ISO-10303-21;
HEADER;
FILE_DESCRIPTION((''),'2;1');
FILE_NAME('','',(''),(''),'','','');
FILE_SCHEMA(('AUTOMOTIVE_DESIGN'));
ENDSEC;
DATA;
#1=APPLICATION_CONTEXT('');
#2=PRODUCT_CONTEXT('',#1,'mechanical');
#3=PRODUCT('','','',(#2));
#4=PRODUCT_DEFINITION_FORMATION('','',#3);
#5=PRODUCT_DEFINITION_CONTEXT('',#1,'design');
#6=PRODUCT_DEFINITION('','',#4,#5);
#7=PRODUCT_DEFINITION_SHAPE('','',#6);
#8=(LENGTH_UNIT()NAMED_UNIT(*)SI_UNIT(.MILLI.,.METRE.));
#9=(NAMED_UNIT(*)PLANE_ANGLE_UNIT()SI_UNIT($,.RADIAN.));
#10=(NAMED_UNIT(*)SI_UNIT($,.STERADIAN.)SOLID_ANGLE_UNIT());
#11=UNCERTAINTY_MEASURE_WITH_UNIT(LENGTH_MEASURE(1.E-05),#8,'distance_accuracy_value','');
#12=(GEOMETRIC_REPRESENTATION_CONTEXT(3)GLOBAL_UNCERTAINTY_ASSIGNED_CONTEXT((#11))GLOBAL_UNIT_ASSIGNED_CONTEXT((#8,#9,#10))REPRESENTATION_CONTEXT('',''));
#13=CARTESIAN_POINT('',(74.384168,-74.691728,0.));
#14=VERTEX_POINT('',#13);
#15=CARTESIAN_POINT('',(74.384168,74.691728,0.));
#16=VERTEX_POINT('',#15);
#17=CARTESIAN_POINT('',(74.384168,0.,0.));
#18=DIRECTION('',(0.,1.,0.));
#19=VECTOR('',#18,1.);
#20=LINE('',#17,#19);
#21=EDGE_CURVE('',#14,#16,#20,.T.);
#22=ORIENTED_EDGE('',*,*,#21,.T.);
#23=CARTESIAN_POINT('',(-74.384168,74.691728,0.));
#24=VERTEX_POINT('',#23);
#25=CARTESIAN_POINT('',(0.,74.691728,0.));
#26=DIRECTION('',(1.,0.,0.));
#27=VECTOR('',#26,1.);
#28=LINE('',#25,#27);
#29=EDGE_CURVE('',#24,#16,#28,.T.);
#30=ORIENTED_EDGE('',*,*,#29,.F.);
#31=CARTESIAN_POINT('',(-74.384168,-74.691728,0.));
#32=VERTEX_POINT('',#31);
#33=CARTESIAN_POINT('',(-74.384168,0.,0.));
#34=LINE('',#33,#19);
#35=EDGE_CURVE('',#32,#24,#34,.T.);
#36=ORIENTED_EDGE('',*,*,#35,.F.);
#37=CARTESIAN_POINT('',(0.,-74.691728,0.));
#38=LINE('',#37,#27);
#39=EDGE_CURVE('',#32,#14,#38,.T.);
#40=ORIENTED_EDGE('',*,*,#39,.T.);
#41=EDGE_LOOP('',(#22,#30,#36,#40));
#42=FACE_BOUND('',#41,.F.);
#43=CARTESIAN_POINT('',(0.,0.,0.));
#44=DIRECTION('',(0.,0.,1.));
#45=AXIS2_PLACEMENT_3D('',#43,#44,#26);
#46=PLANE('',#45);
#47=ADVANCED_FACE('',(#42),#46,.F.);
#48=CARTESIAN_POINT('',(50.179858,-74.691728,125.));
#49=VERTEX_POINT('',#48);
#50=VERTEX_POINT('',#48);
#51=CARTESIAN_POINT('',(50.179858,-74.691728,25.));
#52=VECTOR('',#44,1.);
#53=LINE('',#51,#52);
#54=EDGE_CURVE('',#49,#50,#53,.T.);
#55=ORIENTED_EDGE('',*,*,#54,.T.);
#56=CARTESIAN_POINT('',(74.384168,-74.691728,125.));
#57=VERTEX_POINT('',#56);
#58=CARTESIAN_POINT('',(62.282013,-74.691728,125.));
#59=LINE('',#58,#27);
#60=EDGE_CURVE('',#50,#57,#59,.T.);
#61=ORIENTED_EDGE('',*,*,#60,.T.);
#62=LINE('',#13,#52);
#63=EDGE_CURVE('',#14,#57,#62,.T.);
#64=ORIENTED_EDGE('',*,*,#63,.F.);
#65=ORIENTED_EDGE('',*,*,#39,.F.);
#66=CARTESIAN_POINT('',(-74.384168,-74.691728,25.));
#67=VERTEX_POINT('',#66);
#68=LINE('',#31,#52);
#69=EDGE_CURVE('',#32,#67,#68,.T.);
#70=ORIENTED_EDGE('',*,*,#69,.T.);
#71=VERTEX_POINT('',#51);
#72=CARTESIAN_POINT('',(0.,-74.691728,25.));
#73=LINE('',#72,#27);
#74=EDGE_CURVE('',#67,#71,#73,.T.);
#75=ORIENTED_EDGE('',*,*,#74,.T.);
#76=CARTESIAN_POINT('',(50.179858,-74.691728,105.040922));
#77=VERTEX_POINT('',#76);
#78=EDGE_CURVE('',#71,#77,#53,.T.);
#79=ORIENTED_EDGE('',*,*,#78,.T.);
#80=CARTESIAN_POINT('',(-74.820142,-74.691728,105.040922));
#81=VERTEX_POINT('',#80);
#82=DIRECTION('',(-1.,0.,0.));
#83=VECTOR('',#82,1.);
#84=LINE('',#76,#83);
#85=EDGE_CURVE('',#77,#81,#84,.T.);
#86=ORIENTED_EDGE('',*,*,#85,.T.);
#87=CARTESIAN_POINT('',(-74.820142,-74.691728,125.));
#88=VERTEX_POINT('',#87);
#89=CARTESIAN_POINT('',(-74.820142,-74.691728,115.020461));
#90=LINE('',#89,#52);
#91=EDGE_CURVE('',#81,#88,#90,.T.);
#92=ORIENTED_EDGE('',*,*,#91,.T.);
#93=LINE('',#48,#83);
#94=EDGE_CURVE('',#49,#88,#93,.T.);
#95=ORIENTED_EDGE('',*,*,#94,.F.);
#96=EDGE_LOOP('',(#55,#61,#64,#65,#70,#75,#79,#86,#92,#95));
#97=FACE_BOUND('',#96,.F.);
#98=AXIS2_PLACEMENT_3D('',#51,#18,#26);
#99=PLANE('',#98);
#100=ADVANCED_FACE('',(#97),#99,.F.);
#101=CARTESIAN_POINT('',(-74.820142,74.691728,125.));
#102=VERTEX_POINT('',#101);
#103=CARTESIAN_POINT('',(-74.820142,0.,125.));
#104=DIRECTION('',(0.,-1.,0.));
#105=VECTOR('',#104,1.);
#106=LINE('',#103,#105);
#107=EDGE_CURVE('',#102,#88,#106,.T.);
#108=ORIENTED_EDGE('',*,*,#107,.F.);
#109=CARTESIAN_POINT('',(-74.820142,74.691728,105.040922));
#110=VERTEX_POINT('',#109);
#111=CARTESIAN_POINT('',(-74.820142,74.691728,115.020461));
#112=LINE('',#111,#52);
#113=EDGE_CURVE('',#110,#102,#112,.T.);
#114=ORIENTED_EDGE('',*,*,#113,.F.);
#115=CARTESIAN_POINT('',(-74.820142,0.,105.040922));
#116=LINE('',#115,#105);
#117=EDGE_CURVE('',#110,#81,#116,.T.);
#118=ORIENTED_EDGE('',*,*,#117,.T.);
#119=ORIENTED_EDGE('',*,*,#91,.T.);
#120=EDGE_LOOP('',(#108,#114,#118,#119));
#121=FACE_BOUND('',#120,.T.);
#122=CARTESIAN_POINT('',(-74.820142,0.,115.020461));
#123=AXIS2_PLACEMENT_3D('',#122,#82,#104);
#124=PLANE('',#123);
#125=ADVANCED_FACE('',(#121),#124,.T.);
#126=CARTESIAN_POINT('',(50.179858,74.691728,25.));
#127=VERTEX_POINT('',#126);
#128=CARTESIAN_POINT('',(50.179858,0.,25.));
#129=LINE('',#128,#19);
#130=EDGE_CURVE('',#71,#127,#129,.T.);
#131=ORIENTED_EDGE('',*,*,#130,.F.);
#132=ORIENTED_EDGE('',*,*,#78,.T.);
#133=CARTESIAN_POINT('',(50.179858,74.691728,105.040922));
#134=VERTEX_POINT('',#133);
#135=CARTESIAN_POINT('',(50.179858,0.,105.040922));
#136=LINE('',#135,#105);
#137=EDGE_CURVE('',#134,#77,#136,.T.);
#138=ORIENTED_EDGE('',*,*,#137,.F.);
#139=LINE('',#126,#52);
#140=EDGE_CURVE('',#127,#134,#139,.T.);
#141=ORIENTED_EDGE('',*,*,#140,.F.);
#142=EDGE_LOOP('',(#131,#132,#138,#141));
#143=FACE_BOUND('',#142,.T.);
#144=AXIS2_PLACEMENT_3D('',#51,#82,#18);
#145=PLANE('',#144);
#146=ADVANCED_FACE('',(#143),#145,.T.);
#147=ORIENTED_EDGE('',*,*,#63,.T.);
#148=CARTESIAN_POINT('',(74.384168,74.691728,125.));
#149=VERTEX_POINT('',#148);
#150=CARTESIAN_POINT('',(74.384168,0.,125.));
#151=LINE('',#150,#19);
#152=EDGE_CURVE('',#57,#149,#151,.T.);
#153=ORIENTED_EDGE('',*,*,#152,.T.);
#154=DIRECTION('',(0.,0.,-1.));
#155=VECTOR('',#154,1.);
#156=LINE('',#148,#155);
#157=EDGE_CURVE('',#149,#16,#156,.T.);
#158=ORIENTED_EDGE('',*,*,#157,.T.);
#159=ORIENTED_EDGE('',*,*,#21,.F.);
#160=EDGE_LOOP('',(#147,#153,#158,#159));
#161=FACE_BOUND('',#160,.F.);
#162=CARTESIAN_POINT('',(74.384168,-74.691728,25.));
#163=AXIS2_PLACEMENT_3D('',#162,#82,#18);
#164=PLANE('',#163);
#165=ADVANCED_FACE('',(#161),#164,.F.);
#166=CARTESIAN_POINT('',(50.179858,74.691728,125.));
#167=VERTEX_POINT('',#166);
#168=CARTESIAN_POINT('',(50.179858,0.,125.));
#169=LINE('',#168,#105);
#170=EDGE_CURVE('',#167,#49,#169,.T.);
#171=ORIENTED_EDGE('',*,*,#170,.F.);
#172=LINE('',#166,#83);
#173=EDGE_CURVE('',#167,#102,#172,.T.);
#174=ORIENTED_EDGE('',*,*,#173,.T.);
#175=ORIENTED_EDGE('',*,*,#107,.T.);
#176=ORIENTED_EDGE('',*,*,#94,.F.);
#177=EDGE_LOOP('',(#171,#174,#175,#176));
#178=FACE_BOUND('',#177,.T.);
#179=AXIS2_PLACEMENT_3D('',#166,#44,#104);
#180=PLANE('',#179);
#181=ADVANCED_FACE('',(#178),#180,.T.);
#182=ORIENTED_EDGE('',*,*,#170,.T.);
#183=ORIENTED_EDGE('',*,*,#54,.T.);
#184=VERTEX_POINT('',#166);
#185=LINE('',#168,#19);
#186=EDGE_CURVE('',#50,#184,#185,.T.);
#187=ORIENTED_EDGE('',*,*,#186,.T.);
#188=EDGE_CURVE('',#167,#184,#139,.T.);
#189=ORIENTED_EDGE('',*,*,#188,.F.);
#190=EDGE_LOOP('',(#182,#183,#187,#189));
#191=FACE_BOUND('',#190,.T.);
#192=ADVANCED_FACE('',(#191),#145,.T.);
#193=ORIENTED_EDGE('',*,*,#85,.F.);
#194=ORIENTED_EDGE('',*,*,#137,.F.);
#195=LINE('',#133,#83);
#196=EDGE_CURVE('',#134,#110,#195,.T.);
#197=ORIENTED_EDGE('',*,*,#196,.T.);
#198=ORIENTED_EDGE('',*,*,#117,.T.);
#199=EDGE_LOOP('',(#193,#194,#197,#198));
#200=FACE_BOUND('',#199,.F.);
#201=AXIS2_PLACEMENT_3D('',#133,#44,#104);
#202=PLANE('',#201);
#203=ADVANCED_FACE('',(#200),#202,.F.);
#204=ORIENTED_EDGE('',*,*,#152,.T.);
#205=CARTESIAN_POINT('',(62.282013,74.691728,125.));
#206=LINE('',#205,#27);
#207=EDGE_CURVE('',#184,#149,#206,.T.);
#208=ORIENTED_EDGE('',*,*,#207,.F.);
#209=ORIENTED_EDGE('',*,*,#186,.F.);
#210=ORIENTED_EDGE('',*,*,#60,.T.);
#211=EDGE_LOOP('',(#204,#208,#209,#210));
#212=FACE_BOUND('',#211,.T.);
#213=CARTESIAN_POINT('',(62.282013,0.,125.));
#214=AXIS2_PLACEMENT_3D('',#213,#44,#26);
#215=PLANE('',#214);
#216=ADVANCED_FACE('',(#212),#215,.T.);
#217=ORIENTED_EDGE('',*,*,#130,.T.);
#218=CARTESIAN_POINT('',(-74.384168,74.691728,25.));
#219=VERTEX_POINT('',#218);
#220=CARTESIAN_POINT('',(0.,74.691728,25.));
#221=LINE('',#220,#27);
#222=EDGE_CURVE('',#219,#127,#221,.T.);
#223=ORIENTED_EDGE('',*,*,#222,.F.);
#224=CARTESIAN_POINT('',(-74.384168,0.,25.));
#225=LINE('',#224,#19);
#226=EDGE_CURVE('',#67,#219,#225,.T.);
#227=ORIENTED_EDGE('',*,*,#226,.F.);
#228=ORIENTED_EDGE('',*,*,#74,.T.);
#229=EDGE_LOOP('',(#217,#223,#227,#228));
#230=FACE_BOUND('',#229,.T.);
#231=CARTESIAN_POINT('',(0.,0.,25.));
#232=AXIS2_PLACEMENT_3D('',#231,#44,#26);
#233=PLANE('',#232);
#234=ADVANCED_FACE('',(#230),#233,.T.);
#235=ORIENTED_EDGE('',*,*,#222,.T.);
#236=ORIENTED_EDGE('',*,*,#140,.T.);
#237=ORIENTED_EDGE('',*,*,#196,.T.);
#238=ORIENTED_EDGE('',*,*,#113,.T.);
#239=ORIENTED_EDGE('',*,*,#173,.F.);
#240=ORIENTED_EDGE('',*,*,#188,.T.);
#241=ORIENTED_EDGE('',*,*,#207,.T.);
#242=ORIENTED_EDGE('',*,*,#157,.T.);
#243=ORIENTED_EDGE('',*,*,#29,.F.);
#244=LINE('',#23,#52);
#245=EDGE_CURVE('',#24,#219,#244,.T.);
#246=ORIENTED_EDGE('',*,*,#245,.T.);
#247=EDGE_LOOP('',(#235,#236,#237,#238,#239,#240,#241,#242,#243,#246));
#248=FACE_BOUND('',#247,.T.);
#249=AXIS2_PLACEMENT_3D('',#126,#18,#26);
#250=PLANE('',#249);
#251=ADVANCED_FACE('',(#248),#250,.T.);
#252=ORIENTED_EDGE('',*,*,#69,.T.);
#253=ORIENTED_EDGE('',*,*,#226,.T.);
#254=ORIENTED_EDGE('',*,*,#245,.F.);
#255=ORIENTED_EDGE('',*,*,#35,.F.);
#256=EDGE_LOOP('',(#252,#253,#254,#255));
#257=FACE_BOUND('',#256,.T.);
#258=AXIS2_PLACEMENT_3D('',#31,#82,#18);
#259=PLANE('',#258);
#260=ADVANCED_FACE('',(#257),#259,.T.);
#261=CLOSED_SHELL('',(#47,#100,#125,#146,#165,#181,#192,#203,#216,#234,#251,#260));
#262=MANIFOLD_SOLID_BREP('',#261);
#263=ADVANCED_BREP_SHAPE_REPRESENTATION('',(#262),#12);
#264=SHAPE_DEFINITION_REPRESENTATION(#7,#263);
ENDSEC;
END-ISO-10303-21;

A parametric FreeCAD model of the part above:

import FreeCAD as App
import Part
import Sketcher
from FreeCAD import Vector
Q = App.Units.Quantity

doc = App.newDocument("Part")
params = doc.addObject("Spreadsheet::Sheet", "Params")
for row, (alias, value) in enumerate([
    ("pad1_length", "25 mm"),
    ("pad2_length", "100 mm"),
    ("pad3_length", "125 mm"),
], start=1):
    params.set(f"A{row}", alias)
    params.set(f"B{row}", "=" + value)
    params.setAlias(f"B{row}", alias)

body = doc.addObject("PartDesign::Body", "Body")

sketch1 = body.newObject("Sketcher::SketchObject", "Sketch")
sketch1.AttachmentSupport = (doc.getObject("XY_Plane"), [""])
sketch1.MapMode = "FlatFace"
sketch1.addGeometry([
    Part.LineSegment(Vector(-74.384168, 74.691728, 0), Vector(-74.384168, -74.691728, 0)),
    Part.LineSegment(Vector(-74.384168, -74.691728, 0), Vector(74.384168, -74.691728, 0)),
    Part.LineSegment(Vector(74.384168, -74.691728, 0), Vector(74.384168, 74.691728, 0)),
    Part.LineSegment(Vector(74.384168, 74.691728, 0), Vector(-74.384168, 74.691728, 0)),
], False)
sketch1.addConstraint([
    Sketcher.Constraint("Coincident", 0, 2, 1, 1),
    Sketcher.Constraint("Coincident", 1, 2, 2, 1),
    Sketcher.Constraint("Coincident", 2, 2, 3, 1),
    Sketcher.Constraint("Coincident", 3, 2, 0, 1),
    Sketcher.Constraint("Vertical", 0),
    Sketcher.Constraint("Horizontal", 1),
    Sketcher.Constraint("Vertical", 2),
    Sketcher.Constraint("Horizontal", 3),
    Sketcher.Constraint("Symmetric", 0, 2, 2, 2, -1, 1),
    Sketcher.Constraint("DistanceX", 1, 1, 1, 2, Q("148.768336 mm")),
    Sketcher.Constraint("DistanceY", 0, 2, 0, 1, Q("149.383456 mm")),
])
pad1 = body.newObject("PartDesign::Pad", "Pad")
pad1.Profile = sketch1
pad1.setExpression("Length", "Params.pad1_length")

sketch2 = body.newObject("Sketcher::SketchObject", "Sketch001")
sketch2.AttachmentSupport = (doc.getObject("XY_Plane"), [""])
sketch2.MapMode = "FlatFace"
sketch2.AttachmentOffset = App.Placement(Vector(0, 0, 25), App.Rotation())
sketch2.addGeometry([
    Part.LineSegment(Vector(50.179858, 74.691728, 0), Vector(50.179858, -74.691728, 0)),
    Part.LineSegment(Vector(50.179858, -74.691728, 0), Vector(74.384168, -74.691728, 0)),
    Part.LineSegment(Vector(74.384168, -74.691728, 0), Vector(74.384168, 74.691728, 0)),
    Part.LineSegment(Vector(74.384168, 74.691728, 0), Vector(50.179858, 74.691728, 0)),
], False)
sketch2.addConstraint([
    Sketcher.Constraint("Coincident", 0, 2, 1, 1),
    Sketcher.Constraint("Coincident", 1, 2, 2, 1),
    Sketcher.Constraint("Coincident", 2, 2, 3, 1),
    Sketcher.Constraint("Coincident", 3, 2, 0, 1),
    Sketcher.Constraint("Vertical", 0),
    Sketcher.Constraint("Horizontal", 1),
    Sketcher.Constraint("Vertical", 2),
    Sketcher.Constraint("Horizontal", 3),
    Sketcher.Constraint("DistanceX", 1, 1, 1, 2, Q("24.20431 mm")),
    Sketcher.Constraint("DistanceY", 0, 2, 0, 1, Q("149.383456 mm")),
    Sketcher.Constraint("DistanceX", -1, 1, 0, 2, Q("50.179858 mm")),
    Sketcher.Constraint("DistanceY", 0, 2, -1, 1, Q("74.691728 mm")),
])
pad2 = body.newObject("PartDesign::Pad", "Pad001")
pad2.Profile = sketch2
pad2.setExpression("Length", "Params.pad2_length")

sketch3 = body.newObject("Sketcher::SketchObject", "Sketch002")
sketch3.AttachmentSupport = (doc.getObject("YZ_Plane"), [""])
sketch3.MapMode = "FlatFace"
sketch3.AttachmentOffset = App.Placement(Vector(0, 0, 50.179858), App.Rotation())
sketch3.addGeometry([
    Part.LineSegment(Vector(74.691728, 125, 0), Vector(74.691728, 105.040922, 0)),
    Part.LineSegment(Vector(74.691728, 105.040922, 0), Vector(-74.691728, 105.040922, 0)),
    Part.LineSegment(Vector(-74.691728, 105.040922, 0), Vector(-74.691728, 125, 0)),
    Part.LineSegment(Vector(-74.691728, 125, 0), Vector(74.691728, 125, 0)),
], False)
sketch3.addConstraint([
    Sketcher.Constraint("Coincident", 0, 2, 1, 1),
    Sketcher.Constraint("Coincident", 1, 2, 2, 1),
    Sketcher.Constraint("Coincident", 2, 2, 3, 1),
    Sketcher.Constraint("Coincident", 3, 2, 0, 1),
    Sketcher.Constraint("Vertical", 0),
    Sketcher.Constraint("Horizontal", 1),
    Sketcher.Constraint("Vertical", 2),
    Sketcher.Constraint("Horizontal", 3),
    Sketcher.Constraint("DistanceY", -1, 1, 2, 2, Q("125 mm")),
    Sketcher.Constraint("DistanceX", 1, 2, 1, 1, Q("149.383456 mm")),
    Sketcher.Constraint("DistanceY", 0, 2, 0, 1, Q("19.959077 mm")),
    Sketcher.Constraint("DistanceX", -1, 1, 0, 2, Q("74.691728 mm")),
])
pad3 = body.newObject("PartDesign::Pad", "Pad002")
pad3.Profile = sketch3
pad3.setExpression("Length", "Params.pad3_length")
pad3.Reversed = True

doc.recompute()
